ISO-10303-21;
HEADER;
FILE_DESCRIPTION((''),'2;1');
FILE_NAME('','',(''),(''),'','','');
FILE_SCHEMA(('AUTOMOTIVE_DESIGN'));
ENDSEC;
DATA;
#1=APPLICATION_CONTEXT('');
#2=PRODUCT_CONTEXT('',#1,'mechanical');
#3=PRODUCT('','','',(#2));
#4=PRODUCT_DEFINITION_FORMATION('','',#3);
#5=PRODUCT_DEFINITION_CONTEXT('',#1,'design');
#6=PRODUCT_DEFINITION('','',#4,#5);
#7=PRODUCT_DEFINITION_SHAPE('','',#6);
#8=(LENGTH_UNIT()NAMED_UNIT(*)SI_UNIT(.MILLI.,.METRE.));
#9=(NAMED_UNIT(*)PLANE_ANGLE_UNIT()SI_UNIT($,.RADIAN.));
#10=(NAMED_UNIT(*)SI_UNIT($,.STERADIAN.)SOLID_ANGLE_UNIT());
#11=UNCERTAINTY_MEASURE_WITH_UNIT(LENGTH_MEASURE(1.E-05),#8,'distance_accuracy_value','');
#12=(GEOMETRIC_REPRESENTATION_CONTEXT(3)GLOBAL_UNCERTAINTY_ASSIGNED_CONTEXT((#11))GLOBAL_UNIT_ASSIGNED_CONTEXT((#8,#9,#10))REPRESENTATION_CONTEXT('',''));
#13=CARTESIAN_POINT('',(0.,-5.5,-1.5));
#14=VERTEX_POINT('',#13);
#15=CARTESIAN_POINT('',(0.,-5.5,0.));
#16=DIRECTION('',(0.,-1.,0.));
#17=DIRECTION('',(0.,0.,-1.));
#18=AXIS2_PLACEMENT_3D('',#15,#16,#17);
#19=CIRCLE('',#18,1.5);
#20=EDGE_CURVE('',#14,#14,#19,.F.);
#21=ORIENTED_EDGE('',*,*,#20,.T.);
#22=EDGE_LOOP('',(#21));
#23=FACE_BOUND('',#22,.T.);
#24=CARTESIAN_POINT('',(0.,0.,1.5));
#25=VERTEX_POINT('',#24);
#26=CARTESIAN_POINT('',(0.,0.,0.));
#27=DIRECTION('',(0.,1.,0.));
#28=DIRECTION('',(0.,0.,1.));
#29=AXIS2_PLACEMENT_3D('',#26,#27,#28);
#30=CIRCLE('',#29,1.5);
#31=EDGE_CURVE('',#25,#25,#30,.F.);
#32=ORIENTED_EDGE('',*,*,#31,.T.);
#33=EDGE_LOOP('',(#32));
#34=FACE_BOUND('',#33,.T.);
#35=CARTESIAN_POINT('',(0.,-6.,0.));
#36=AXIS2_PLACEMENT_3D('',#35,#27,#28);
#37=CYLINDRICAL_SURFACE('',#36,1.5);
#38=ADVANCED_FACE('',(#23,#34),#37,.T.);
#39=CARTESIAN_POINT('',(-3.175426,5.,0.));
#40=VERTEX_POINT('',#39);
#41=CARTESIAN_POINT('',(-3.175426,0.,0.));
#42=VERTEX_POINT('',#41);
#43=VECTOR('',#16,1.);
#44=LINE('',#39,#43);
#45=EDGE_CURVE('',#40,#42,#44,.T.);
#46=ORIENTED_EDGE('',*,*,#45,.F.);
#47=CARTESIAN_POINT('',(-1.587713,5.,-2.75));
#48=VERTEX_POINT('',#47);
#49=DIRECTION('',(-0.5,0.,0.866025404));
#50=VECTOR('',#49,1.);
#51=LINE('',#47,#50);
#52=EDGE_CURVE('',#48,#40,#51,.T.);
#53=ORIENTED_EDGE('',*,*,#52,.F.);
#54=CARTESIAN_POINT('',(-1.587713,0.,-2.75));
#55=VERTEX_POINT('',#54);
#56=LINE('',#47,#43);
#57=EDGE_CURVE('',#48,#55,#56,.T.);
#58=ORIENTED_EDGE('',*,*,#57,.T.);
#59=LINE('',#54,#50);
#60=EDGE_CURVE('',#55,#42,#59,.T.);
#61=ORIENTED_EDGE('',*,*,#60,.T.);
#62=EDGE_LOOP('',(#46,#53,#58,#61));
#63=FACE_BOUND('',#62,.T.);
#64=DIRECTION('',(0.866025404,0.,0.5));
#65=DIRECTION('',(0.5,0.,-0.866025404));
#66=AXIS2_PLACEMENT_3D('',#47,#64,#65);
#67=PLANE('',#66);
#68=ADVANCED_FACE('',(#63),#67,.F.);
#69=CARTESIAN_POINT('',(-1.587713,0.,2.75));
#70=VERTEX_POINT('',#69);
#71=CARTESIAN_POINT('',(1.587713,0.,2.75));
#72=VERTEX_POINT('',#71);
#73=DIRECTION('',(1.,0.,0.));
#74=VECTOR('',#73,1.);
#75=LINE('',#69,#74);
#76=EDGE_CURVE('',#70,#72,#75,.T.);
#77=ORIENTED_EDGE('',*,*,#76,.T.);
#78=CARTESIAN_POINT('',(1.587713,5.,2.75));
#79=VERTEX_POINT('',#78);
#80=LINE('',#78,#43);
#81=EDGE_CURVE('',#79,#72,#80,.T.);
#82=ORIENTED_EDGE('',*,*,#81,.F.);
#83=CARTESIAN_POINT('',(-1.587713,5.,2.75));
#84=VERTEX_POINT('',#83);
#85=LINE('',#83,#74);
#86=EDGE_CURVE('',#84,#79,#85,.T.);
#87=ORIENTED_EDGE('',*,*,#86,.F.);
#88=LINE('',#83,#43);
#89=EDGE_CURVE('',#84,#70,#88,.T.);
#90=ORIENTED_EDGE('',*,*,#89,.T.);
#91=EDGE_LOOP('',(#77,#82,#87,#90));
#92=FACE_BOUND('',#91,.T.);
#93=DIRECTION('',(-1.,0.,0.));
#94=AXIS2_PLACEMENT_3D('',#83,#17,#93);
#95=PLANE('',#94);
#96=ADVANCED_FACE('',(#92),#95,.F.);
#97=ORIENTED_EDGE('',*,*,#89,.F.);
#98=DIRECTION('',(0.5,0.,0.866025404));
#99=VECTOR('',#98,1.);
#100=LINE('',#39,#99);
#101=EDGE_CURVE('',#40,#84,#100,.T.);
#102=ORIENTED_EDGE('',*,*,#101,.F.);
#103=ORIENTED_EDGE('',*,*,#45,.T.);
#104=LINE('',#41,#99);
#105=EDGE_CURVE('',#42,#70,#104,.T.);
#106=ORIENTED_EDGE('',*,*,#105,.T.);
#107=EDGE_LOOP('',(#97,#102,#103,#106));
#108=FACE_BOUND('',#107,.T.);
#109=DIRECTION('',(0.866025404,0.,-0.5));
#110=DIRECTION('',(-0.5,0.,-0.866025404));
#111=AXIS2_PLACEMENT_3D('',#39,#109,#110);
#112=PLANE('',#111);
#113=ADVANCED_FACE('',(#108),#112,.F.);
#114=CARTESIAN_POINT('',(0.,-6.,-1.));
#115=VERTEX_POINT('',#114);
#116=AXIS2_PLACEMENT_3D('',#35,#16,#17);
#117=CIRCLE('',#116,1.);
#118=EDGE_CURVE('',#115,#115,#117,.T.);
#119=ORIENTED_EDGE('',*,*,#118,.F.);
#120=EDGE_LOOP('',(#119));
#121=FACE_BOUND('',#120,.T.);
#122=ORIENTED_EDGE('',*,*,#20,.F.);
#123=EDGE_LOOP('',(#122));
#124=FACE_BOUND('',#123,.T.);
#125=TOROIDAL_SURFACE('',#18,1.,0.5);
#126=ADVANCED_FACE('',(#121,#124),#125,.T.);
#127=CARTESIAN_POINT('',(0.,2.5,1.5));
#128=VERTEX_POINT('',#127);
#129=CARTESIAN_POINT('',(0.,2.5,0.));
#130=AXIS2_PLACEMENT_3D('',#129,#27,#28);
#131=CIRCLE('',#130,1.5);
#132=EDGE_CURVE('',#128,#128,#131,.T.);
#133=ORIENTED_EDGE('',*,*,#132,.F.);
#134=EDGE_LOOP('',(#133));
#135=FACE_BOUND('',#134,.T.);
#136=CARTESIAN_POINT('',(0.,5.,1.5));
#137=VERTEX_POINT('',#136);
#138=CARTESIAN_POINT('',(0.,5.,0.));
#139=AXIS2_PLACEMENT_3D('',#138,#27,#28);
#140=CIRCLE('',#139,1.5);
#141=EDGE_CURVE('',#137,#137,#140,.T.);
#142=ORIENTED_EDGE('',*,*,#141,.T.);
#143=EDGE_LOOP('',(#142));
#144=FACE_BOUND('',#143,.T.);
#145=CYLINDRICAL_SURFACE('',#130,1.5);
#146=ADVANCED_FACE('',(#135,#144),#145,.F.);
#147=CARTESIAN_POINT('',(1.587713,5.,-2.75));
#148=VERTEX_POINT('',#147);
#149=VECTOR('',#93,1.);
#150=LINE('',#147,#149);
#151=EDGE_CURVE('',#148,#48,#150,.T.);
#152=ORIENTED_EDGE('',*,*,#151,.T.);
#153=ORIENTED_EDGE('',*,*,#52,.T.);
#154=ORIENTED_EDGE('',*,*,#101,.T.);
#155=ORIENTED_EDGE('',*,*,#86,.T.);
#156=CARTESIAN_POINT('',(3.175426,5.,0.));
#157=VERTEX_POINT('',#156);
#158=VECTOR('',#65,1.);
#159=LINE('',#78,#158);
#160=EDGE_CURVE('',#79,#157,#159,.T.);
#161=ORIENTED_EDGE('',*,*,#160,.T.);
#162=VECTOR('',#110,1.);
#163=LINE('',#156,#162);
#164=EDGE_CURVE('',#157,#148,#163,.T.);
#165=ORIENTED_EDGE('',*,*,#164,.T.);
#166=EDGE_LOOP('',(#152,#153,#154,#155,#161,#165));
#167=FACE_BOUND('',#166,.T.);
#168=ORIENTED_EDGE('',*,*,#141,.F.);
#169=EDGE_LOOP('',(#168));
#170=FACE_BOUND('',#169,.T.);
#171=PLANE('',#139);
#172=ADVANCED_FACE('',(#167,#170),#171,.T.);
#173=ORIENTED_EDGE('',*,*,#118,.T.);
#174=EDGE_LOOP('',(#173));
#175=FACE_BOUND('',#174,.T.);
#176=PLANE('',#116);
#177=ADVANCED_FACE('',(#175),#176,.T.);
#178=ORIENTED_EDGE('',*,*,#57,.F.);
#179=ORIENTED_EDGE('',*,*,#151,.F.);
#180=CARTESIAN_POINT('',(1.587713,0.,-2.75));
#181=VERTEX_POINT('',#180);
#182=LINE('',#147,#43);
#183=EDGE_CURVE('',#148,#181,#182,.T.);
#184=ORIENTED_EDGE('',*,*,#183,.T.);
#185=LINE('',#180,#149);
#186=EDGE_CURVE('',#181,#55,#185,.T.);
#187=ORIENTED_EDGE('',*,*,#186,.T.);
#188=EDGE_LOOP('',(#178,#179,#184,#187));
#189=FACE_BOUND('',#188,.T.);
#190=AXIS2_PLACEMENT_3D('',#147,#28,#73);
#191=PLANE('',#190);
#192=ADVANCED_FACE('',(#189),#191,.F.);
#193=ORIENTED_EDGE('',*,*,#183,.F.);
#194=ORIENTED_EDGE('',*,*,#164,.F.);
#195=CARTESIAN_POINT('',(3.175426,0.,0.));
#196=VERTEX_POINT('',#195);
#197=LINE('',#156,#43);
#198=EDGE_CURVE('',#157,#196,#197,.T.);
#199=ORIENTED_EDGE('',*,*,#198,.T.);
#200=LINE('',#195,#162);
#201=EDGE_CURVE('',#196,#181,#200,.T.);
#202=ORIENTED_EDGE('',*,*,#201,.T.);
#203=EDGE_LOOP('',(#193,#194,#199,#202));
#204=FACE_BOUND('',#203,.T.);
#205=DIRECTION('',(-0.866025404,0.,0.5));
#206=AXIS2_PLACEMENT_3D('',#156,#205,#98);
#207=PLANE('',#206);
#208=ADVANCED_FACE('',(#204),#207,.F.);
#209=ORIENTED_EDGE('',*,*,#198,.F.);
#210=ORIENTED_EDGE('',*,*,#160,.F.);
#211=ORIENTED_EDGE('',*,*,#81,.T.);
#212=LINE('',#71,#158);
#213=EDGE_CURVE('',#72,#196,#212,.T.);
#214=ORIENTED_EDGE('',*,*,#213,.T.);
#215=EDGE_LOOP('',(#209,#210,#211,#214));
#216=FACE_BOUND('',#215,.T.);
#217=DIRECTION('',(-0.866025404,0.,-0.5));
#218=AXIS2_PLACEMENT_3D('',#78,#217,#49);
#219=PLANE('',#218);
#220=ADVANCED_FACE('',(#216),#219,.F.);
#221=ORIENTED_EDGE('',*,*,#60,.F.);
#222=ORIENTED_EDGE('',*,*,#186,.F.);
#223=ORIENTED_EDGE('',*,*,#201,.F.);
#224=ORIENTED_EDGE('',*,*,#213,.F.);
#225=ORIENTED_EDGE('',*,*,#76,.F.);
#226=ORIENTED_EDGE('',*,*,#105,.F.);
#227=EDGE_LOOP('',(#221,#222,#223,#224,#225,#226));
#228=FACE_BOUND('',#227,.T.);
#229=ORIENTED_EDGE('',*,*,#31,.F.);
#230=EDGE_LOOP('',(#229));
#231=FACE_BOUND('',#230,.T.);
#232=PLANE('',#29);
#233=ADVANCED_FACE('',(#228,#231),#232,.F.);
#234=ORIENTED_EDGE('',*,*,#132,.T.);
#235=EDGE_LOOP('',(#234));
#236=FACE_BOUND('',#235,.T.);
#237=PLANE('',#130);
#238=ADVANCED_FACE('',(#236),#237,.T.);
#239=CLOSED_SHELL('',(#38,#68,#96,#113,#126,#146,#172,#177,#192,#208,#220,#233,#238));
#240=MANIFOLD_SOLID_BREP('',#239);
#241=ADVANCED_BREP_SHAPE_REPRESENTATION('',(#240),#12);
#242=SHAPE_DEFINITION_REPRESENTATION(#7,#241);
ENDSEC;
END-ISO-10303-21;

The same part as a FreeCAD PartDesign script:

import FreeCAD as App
import Part
import Sketcher

V = App.Vector
Q = App.Units.Quantity


def edges_at(feature, points):
    """Names of the edges that pass closest to the given points."""
    edges = feature.Shape.Edges
    near = lambda p: min(range(len(edges)), key=lambda i: edges[i].distToShape(Part.Vertex(*p))[0])
    return sorted({f"Edge{near(p) + 1}" for p in points})

doc = App.newDocument("Part")
body = doc.addObject("PartDesign::Body", "Body")

# Sketch on XZ plane
sketch1 = body.newObject("Sketcher::SketchObject", "Sketch")
sketch1.AttachmentSupport = (doc.getObject("XZ_Plane"), [""])
sketch1.MapMode = "FlatFace"
sketch1.addGeometry(Part.LineSegment(V(3.2, 0, 0), V(1.6, -2.8, 0)), False)
sketch1.addGeometry(Part.LineSegment(V(1.6, -2.8, 0), V(-1.6, -2.8, 0)), False)
sketch1.addGeometry(Part.LineSegment(V(-1.6, -2.8, 0), V(-3.2, 0, 0)), False)
sketch1.addGeometry(Part.LineSegment(V(-3.2, 0, 0), V(-1.6, 2.8, 0)), False)
sketch1.addGeometry(Part.LineSegment(V(-1.6, 2.8, 0), V(1.6, 2.8, 0)), False)
sketch1.addGeometry(Part.LineSegment(V(1.6, 2.8, 0), V(3.2, 0, 0)), False)
sketch1.addConstraint(Sketcher.Constraint("Coincident", 0, 2, 1, 1))
sketch1.addConstraint(Sketcher.Constraint("Coincident", 1, 2, 2, 1))
sketch1.addConstraint(Sketcher.Constraint("Coincident", 2, 2, 3, 1))
sketch1.addConstraint(Sketcher.Constraint("Coincident", 3, 2, 4, 1))
sketch1.addConstraint(Sketcher.Constraint("Coincident", 4, 2, 5, 1))
sketch1.addConstraint(Sketcher.Constraint("Coincident", 5, 2, 0, 1))
sketch1.addConstraint(Sketcher.Constraint("Horizontal", 1))
sketch1.addConstraint(Sketcher.Constraint("Horizontal", 4))
sketch1.addConstraint(Sketcher.Constraint("Symmetric", 0, 2, 3, 2, -1, 1))
sketch1.addConstraint(Sketcher.Constraint("Symmetric", 2, 2, 5, 2, -1, 1))
sketch1.addConstraint(Sketcher.Constraint("PointOnObject", 2, 2, -1))
sketch1.addConstraint(Sketcher.Constraint("Parallel", 2, 5))
sketch1.addConstraint(Sketcher.Constraint("Vertical", 1, 2, 3, 2))
sketch1.addConstraint(Sketcher.Constraint("Angle", 0, Q("-120 deg")))
sketch1.addConstraint(Sketcher.Constraint("DistanceY", 1, 2, 3, 2, Q("5.5 mm")))
sketch1.addConstraint(Sketcher.Constraint("DistanceX", 1, 2, 1, 1, Q("3.175426 mm")))
pad1 = body.newObject("PartDesign::Pad", "Pad")
pad1.Profile = sketch1
pad1.Length = 5
pad1.Reversed = True

# Sketch on XZ plane
sketch2 = body.newObject("Sketcher::SketchObject", "Sketch001")
sketch2.AttachmentSupport = (doc.getObject("XZ_Plane"), [""])
sketch2.MapMode = "FlatFace"
sketch2.addGeometry(Part.Circle(V(0, 0, 0), V(0, 0, 1), 1.5), False)
sketch2.addConstraint(Sketcher.Constraint("Coincident", 0, 3, -1, 1))
sketch2.addConstraint(Sketcher.Constraint("Diameter", 0, Q("3 mm")))
pad2 = body.newObject("PartDesign::Pad", "Pad001")
pad2.Profile = sketch2
pad2.Length = 6
doc.recompute()

fillet = body.newObject("PartDesign::Fillet", "Fillet")
fillet.Base = (pad2, edges_at(pad2, [(0, -6, -1.5)]))
fillet.Radius = 0.5

# Sketch on XZ plane
sketch3 = body.newObject("Sketcher::SketchObject", "Sketch002")
sketch3.AttachmentSupport = (doc.getObject("XZ_Plane"), [""])
sketch3.MapMode = "FlatFace"
sketch3.AttachmentOffset = App.Placement(V(0, 0, -5), App.Rotation())
sketch3.addGeometry(Part.Circle(V(0, 0, 0), V(0, 0, 1), 1.5), False)
sketch3.addConstraint(Sketcher.Constraint("Coincident", 0, 3, -1, 1))
sketch3.addConstraint(Sketcher.Constraint("Diameter", 0, Q("3 mm")))
pocket1 = body.newObject("PartDesign::Pocket", "Pocket")
pocket1.Profile = sketch3
pocket1.Length = 2.5
pocket1.Reversed = True

doc.recompute()
